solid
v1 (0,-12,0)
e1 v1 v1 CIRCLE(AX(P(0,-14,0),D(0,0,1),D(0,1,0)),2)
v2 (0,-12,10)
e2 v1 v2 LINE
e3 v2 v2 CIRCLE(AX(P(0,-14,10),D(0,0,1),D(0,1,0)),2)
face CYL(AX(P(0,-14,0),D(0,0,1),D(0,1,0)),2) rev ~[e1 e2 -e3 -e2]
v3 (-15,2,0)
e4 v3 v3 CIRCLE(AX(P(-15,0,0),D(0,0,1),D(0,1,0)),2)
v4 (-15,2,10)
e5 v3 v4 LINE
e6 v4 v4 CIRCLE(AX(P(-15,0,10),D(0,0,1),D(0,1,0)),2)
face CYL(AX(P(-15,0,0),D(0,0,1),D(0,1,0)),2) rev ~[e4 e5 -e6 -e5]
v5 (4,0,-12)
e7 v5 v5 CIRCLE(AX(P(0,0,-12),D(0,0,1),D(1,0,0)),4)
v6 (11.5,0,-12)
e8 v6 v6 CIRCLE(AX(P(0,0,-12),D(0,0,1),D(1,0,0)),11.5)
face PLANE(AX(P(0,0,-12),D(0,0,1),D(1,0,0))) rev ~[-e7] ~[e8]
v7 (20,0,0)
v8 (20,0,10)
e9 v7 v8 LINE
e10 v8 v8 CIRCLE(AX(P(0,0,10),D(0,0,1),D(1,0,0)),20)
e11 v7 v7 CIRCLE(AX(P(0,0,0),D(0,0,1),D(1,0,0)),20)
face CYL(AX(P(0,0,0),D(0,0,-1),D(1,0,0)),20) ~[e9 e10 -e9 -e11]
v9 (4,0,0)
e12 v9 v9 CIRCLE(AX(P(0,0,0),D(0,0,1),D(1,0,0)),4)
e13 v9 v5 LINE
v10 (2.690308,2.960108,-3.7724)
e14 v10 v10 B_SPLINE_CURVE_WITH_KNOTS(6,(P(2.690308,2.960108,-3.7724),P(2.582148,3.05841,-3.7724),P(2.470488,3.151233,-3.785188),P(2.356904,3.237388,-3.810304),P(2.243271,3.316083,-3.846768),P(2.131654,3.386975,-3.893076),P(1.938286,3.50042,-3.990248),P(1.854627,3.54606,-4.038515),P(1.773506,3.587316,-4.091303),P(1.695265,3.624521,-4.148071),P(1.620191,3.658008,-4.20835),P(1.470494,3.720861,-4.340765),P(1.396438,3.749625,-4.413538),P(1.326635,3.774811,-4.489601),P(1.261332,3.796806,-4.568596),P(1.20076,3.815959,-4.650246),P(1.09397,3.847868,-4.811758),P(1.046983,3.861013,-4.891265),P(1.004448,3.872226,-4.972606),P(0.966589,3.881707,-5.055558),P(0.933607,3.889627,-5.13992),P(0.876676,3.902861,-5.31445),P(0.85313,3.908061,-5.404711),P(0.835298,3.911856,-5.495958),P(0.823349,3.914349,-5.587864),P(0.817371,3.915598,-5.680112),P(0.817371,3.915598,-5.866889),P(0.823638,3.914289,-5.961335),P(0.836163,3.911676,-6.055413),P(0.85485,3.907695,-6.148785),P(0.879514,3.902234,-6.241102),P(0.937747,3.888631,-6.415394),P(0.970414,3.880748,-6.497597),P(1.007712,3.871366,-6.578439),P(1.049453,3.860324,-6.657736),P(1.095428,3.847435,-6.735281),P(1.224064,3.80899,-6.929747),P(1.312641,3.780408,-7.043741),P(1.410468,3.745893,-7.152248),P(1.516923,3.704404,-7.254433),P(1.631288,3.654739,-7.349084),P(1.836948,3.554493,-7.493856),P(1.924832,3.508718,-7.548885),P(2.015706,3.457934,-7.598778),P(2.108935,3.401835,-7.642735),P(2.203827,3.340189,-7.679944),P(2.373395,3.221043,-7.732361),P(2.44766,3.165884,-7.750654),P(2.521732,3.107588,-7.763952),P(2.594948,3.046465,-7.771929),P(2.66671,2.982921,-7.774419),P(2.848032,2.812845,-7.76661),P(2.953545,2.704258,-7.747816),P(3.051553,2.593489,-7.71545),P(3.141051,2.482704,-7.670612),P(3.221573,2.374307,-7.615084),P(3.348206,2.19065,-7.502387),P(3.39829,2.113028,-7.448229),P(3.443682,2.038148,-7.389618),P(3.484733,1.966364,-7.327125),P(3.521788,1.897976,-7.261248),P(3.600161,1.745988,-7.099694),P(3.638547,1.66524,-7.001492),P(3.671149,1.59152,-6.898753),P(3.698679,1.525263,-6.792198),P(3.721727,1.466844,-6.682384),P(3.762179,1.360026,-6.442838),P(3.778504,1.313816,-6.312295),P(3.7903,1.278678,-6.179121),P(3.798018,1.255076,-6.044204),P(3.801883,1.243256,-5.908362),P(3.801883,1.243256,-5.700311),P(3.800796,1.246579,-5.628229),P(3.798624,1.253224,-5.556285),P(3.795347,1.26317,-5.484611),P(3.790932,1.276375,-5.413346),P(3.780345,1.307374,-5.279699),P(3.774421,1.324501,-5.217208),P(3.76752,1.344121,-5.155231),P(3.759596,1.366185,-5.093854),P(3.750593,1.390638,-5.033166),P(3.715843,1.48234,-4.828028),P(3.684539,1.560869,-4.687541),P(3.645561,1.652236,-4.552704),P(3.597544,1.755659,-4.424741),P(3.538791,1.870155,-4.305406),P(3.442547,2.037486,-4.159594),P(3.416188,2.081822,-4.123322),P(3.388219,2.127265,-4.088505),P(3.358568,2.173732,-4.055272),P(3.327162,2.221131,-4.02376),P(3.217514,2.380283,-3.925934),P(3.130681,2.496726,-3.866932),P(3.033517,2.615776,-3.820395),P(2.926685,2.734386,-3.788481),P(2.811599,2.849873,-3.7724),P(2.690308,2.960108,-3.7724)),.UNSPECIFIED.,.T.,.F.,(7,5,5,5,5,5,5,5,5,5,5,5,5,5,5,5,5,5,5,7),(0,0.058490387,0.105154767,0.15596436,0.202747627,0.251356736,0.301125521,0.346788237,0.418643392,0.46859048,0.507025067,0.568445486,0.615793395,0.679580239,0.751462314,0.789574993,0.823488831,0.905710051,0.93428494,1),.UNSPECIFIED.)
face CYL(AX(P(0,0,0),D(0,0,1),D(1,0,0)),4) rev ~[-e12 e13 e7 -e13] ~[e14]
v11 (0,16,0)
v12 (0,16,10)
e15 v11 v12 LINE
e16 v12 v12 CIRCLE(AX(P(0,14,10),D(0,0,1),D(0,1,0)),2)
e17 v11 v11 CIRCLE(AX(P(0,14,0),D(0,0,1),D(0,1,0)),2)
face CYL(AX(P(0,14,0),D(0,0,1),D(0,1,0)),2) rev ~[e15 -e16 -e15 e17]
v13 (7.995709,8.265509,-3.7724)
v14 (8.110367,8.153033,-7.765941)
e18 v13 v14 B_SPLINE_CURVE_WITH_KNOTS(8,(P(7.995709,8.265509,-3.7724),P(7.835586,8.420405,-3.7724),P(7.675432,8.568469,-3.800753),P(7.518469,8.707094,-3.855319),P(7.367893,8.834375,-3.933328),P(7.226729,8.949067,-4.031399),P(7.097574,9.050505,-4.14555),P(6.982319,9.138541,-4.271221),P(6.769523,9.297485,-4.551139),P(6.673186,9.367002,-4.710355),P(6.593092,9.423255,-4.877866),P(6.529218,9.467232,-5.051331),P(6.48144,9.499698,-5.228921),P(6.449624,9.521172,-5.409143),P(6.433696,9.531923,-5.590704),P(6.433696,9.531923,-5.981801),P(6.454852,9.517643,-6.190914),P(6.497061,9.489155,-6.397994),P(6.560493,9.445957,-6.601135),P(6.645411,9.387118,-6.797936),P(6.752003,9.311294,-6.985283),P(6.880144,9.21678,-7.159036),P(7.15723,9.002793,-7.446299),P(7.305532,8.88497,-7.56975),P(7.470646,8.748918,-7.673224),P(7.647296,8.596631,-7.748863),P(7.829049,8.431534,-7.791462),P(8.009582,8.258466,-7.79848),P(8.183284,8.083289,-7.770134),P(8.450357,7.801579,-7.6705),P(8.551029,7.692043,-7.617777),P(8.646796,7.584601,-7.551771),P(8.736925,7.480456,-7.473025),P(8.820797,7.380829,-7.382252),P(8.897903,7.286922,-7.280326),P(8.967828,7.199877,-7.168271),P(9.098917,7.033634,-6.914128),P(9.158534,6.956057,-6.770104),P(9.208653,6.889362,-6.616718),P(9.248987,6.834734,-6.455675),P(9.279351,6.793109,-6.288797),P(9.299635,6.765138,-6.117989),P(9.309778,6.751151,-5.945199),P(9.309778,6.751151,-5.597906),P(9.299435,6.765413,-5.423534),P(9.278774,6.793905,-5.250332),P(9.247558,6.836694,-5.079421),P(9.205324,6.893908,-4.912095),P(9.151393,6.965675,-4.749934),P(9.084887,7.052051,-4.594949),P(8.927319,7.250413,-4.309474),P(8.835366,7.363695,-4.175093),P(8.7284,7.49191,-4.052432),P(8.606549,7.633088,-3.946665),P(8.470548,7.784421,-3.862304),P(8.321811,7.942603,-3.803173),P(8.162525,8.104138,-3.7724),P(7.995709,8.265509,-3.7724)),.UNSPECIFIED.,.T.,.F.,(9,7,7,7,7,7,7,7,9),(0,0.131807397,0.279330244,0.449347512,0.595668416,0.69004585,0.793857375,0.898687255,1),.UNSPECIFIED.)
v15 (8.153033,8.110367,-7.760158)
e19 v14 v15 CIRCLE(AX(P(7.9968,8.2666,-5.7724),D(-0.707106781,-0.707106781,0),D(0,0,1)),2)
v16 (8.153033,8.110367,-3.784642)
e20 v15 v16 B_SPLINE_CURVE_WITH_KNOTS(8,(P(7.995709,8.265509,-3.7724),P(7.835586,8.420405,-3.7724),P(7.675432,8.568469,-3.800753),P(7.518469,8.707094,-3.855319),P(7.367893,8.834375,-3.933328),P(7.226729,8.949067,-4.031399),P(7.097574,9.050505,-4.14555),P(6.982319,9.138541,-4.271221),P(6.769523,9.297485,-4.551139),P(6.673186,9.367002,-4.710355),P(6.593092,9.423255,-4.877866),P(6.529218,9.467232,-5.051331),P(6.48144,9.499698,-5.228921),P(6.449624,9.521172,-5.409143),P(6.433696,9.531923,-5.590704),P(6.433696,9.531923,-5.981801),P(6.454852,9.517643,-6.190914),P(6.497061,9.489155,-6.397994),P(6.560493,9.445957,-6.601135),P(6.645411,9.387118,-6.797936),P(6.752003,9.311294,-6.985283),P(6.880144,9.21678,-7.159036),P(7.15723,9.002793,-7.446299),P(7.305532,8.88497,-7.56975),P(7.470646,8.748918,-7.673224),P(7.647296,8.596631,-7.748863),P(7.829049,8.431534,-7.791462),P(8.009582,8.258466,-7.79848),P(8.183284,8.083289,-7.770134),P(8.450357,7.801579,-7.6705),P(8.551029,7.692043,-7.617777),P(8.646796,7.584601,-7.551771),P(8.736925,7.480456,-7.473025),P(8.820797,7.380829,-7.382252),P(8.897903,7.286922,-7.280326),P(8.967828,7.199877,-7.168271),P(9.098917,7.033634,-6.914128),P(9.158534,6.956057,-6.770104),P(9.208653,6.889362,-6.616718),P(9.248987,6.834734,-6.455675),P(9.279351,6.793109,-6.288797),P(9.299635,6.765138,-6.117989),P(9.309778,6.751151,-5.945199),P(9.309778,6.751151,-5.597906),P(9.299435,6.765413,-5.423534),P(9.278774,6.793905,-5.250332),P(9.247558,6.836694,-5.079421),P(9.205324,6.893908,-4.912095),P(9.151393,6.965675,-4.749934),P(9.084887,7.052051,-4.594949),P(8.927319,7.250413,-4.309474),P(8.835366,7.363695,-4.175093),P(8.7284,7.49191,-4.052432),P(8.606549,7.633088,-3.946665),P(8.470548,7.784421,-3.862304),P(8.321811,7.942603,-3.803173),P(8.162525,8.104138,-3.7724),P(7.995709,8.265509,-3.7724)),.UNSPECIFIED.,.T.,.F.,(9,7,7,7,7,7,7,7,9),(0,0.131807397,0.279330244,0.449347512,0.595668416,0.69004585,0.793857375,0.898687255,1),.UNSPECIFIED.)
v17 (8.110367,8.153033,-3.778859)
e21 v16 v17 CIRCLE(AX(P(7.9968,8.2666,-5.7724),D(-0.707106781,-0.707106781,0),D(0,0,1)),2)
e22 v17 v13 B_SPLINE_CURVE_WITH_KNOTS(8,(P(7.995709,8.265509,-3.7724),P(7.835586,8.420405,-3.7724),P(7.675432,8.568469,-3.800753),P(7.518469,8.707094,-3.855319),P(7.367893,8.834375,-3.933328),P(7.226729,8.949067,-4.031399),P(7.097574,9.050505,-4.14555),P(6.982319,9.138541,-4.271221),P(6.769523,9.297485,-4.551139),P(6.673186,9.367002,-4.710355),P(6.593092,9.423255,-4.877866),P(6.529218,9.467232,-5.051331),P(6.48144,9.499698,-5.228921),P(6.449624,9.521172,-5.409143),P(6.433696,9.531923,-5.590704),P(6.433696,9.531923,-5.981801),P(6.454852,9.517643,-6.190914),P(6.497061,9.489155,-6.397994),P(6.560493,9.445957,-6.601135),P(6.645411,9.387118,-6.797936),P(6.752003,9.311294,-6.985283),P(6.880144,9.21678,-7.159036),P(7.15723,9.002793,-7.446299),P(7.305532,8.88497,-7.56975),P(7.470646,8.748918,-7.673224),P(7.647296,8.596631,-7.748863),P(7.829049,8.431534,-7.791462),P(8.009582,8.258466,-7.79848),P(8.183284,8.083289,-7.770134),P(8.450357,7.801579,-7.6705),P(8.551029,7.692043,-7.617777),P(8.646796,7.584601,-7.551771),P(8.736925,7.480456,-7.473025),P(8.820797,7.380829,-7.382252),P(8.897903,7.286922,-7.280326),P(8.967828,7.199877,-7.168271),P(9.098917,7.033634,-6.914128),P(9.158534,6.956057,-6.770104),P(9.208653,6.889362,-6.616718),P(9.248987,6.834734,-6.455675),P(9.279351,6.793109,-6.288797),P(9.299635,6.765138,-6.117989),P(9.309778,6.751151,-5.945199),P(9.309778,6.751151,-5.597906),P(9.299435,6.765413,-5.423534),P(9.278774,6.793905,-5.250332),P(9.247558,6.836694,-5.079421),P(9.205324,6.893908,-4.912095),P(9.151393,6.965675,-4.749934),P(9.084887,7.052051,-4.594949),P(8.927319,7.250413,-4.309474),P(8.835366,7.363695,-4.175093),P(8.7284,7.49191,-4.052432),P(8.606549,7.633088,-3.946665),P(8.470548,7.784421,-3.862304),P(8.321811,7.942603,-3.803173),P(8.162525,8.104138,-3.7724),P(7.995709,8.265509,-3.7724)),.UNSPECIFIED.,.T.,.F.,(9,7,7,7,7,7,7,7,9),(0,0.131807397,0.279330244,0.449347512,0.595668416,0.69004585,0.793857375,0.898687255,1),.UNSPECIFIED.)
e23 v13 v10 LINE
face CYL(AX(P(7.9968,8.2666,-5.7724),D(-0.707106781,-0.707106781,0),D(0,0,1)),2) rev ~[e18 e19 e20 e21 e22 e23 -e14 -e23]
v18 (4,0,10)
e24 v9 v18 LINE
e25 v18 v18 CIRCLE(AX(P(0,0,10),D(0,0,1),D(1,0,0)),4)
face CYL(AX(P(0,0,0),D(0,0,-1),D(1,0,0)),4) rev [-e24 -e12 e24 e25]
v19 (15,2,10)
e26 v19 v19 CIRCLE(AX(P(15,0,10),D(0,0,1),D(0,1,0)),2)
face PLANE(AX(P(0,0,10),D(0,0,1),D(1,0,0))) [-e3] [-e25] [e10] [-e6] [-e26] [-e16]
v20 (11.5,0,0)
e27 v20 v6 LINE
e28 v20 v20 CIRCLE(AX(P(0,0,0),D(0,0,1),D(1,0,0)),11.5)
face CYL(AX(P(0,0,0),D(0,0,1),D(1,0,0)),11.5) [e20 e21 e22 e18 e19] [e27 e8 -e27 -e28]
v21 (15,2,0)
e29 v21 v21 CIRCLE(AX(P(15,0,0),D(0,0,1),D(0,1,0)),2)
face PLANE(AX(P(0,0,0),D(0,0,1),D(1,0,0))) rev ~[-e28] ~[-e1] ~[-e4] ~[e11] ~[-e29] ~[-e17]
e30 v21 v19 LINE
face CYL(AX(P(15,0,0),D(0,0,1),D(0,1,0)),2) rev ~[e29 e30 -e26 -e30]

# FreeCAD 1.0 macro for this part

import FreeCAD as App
import Part
import Sketcher
from FreeCAD import Vector
Q = App.Units.Quantity

doc = App.newDocument("Part")
body = doc.addObject("PartDesign::Body", "Body")

sketch1 = body.newObject("Sketcher::SketchObject", "Sketch")
sketch1.AttachmentSupport = (doc.getObject("XY_Plane"), [""])
sketch1.MapMode = "FlatFace"
sketch1.addGeometry([
    Part.Circle(Vector(0, 0, 0), Vector(0, 0, 1), 20),
    Part.Circle(Vector(0, 0, 0), Vector(0, 0, 1), 4),
], False)
sketch1.addConstraint([
    Sketcher.Constraint("Coincident", 0, 3, -1, 1),
    Sketcher.Constraint("Coincident", 1, 3, -1, 1),
    Sketcher.Constraint("Diameter", 0, Q("40 mm")),
    Sketcher.Constraint("Diameter", 1, Q("8 mm")),
])
pad1 = body.newObject("PartDesign::Pad", "Pad")
pad1.Profile = sketch1
pad1.Length = 10

sketch2 = body.newObject("Sketcher::SketchObject", "Sketch001")
sketch2.AttachmentSupport = (doc.getObject("XY_Plane"), [""])
sketch2.MapMode = "FlatFace"
sketch2.addGeometry([
    Part.Circle(Vector(0, 0, 0), Vector(0, 0, 1), 11.5),
    Part.Circle(Vector(0, 0, 0), Vector(0, 0, 1), 4),
], False)
sketch2.addConstraint([
    Sketcher.Constraint("Coincident", 0, 3, -1, 1),
    Sketcher.Constraint("Coincident", 1, 3, -1, 1),
    Sketcher.Constraint("Diameter", 0, Q("23 mm")),
    Sketcher.Constraint("Diameter", 1, Q("8 mm")),
])
pad2 = body.newObject("PartDesign::Pad", "Pad001")
pad2.Profile = sketch2
pad2.Length = 12
pad2.Reversed = True

sketch3 = body.newObject("Sketcher::SketchObject", "Sketch002")
sketch3.AttachmentSupport = (doc.getObject("XY_Plane"), [""])
sketch3.MapMode = "FlatFace"
sketch3.addGeometry([
    Part.Circle(Vector(0, 14, 0), Vector(0, 0, 1), 2),
    Part.Circle(Vector(15, 0, 0), Vector(0, 0, 1), 2),
    Part.Circle(Vector(0, -14, 0), Vector(0, 0, 1), 2),
    Part.Circle(Vector(-15, 0, 0), Vector(0, 0, 1), 2),
], False)
sketch3.addConstraint([
    Sketcher.Constraint("Equal", 0, 1),
    Sketcher.Constraint("Equal", 1, 2),
    Sketcher.Constraint("Equal", 2, 3),
    Sketcher.Constraint("Symmetric", 0, 3, 2, 3, -1, 1),
    Sketcher.Constraint("Symmetric", 1, 3, 3, 3, -1, 1),
    Sketcher.Constraint("PointOnObject", 0, 3, -2),
    Sketcher.Constraint("PointOnObject", 1, 3, -1),
    Sketcher.Constraint("Diameter", 0, Q("4 mm")),
    Sketcher.Constraint("DistanceY", -1, 1, 0, 3, Q("14 mm")),
    Sketcher.Constraint("DistanceX", -1, 1, 1, 3, Q("15 mm")),
])
doc.recompute()
hole = body.newObject("PartDesign::Hole", "Hole")
hole.Profile = sketch3
hole.ThreadType = "None"
hole.Diameter = 4
hole.DepthType = "Dimension"
hole.Depth = 20
hole.DrillPoint = "Angled"
hole.DrillPointAngle = 118
hole.Reversed = True

sketch4 = body.newObject("Sketcher::SketchObject", "Sketch003")
sketch4.Placement = App.Placement(Vector(8.1317, 8.1317, 0), App.Rotation(Vector(-0.707106781, 0.707106781, 0), Vector(0, 0, 0.999999999), Vector(0.707106781, 0.707106781, 0), "ZXY"))
sketch4.addGeometry(Part.Circle(Vector(0.2, -5.8, 0), Vector(0, 0, 1), 2), False)
sketch4.addConstraint([
    Sketcher.Constraint("Diameter", 0, Q("4 mm")),
    Sketcher.Constraint("DistanceX", -1, 1, 0, 3, Q("0.1908 mm")),
    Sketcher.Constraint("DistanceY", 0, 3, -1, 1, Q("5.7724 mm")),
])
doc.recompute()
hole2 = body.newObject("PartDesign::Hole", "Hole001")
hole2.Profile = sketch4
hole2.ThreadType = "None"
hole2.Diameter = 4
hole2.DepthType = "Dimension"
hole2.Depth = 12
hole2.DrillPoint = "Angled"
hole2.DrillPointAngle = 118

doc.recompute()
